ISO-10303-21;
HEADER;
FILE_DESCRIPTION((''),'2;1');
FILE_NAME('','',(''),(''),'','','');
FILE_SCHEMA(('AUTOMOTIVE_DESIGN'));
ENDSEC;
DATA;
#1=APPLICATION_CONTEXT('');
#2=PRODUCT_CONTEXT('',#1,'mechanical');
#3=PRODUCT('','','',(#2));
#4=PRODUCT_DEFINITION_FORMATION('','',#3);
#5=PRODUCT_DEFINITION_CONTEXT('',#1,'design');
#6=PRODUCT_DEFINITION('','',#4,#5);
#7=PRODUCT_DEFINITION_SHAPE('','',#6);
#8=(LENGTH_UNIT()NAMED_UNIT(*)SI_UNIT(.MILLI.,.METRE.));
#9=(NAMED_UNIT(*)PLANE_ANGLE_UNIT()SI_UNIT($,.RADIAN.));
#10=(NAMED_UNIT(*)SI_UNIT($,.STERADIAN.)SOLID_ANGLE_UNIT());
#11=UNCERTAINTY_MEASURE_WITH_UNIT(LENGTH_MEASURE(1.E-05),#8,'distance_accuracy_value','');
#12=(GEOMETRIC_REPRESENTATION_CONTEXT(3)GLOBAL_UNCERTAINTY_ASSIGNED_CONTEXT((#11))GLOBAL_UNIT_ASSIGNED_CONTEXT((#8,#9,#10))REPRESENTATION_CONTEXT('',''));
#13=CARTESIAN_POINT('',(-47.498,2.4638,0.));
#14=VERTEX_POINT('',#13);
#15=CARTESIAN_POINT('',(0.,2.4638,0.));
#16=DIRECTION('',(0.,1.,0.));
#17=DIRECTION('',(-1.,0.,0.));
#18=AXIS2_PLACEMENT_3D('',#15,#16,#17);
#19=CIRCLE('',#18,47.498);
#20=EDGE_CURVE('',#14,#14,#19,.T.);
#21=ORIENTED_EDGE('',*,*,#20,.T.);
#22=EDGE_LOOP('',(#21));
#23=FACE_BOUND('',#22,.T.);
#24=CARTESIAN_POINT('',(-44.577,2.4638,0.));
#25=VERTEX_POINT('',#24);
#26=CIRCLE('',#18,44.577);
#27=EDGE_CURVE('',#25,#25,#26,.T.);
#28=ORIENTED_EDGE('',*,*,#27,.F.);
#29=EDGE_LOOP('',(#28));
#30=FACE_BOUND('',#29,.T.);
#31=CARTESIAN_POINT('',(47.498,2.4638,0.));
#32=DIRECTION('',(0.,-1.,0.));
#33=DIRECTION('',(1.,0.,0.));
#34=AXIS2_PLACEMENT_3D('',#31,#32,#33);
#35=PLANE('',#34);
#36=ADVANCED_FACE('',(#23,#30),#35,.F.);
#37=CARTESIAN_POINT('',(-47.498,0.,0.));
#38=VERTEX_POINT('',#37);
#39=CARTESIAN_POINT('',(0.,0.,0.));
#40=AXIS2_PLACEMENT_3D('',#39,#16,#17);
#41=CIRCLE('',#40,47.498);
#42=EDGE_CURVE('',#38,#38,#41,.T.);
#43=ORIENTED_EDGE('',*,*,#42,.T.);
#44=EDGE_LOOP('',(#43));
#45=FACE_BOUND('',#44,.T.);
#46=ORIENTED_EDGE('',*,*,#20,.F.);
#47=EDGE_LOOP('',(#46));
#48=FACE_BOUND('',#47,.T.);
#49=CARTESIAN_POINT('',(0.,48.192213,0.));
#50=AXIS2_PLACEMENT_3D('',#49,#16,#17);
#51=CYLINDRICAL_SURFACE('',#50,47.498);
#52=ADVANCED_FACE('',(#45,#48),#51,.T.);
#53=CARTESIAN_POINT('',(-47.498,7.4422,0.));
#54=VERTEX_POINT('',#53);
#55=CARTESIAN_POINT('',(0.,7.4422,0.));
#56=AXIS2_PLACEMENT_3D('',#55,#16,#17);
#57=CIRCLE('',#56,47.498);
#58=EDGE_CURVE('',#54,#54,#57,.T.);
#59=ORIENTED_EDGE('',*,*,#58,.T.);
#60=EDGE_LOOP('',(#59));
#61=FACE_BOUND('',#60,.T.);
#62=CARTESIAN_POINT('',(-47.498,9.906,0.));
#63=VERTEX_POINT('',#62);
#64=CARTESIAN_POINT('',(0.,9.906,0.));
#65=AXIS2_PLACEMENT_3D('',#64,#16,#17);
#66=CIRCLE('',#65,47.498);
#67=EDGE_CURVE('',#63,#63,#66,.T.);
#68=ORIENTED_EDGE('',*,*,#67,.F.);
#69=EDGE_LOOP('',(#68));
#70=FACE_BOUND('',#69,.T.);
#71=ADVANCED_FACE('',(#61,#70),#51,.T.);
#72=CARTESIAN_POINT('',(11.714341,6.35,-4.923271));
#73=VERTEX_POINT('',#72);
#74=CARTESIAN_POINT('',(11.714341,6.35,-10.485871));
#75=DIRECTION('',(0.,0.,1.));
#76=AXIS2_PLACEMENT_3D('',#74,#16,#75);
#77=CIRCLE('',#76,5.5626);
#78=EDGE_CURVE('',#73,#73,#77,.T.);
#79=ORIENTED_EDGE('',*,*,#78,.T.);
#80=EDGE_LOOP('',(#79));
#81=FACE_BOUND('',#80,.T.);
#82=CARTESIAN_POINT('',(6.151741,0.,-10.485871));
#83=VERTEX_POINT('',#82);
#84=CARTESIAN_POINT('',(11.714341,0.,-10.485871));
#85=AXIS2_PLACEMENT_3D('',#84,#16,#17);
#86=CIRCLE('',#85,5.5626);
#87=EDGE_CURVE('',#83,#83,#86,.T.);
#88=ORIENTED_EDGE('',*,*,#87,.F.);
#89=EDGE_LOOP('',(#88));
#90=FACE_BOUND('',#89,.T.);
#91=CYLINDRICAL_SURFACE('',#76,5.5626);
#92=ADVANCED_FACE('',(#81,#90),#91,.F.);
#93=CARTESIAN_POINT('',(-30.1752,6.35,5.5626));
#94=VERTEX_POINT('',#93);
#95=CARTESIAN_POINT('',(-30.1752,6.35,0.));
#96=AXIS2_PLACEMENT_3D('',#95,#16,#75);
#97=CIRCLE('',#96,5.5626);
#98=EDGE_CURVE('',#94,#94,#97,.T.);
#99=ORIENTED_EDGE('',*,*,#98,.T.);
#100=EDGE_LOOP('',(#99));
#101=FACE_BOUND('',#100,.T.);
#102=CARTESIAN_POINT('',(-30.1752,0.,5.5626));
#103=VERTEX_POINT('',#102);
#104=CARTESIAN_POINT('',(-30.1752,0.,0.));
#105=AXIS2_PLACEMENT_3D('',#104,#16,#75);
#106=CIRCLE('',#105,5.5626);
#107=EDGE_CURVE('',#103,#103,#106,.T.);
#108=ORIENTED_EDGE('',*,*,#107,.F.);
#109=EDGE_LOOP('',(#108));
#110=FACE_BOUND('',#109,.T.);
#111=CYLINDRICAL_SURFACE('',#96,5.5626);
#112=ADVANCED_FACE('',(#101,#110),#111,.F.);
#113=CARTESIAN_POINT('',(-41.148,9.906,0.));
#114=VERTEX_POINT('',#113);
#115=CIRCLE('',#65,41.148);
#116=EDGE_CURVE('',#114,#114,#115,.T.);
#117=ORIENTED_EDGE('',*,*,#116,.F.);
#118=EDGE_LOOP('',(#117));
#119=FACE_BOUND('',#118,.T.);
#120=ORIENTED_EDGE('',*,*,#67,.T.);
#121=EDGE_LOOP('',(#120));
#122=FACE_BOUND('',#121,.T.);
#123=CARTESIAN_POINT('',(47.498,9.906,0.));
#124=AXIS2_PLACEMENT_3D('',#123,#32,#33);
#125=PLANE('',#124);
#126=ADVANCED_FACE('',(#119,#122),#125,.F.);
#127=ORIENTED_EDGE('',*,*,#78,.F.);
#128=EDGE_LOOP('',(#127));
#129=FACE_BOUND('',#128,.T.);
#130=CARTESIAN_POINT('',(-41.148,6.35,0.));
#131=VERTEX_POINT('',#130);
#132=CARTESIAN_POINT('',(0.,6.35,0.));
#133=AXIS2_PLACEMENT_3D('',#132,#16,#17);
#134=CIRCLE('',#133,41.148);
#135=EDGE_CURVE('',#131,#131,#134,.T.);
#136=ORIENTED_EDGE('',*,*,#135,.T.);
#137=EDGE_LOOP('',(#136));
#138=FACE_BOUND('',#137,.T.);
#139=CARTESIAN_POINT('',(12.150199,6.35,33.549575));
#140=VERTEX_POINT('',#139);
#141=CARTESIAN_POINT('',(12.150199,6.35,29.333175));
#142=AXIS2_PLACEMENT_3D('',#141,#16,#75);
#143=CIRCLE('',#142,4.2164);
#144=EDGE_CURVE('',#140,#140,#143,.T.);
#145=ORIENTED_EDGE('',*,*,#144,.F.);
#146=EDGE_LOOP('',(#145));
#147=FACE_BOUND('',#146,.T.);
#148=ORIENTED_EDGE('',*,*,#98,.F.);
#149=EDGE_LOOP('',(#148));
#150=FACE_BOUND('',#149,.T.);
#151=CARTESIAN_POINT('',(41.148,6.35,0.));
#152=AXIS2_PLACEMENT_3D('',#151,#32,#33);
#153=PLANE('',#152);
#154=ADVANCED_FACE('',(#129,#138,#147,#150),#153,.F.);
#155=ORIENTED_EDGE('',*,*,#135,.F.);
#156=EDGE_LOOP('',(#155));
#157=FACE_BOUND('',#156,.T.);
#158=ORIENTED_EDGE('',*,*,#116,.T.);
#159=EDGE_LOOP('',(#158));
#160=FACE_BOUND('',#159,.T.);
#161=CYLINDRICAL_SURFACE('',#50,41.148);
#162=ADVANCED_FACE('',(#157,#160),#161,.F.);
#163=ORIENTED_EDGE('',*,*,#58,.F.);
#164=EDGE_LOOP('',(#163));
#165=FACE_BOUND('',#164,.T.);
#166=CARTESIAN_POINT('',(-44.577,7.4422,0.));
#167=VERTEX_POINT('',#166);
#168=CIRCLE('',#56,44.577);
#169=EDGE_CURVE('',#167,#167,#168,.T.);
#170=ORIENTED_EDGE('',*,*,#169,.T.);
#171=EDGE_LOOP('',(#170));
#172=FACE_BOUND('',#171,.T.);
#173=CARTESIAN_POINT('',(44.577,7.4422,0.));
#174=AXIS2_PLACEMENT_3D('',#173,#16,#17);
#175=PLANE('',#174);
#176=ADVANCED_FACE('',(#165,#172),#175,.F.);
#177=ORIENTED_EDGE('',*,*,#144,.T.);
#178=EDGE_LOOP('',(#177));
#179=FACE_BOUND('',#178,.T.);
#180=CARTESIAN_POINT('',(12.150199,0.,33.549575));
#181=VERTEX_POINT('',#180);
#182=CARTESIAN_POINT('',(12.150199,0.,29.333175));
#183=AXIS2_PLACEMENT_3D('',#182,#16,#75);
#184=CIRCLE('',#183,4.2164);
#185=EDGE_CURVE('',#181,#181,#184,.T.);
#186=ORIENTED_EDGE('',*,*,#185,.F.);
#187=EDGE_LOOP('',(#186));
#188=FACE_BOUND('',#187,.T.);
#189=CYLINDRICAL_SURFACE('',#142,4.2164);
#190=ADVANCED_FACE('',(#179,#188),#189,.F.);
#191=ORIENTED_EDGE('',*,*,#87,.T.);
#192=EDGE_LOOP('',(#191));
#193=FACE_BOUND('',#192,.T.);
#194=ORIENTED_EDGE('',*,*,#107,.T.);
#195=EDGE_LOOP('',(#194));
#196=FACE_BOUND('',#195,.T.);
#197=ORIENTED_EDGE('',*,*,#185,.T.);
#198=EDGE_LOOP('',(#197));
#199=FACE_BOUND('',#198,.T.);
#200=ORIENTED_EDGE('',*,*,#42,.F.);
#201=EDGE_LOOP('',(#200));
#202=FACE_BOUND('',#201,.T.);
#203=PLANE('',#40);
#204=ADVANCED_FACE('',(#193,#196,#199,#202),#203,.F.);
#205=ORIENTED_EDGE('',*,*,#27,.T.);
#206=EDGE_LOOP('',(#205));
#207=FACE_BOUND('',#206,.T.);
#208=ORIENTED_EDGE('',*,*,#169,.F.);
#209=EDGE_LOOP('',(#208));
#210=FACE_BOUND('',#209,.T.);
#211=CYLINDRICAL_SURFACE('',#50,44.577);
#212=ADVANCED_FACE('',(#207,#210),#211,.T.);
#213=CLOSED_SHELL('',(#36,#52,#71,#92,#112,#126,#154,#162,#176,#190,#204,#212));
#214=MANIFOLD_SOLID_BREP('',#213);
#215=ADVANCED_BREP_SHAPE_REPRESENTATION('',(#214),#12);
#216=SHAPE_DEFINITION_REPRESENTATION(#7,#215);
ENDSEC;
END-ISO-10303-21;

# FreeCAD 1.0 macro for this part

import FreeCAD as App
import Part
import Sketcher

V = App.Vector
Q = App.Units.Quantity

doc = App.newDocument("Part")
body = doc.addObject("PartDesign::Body", "Body")

# Sketch on XY plane
sketch1 = doc.addObject("Sketcher::SketchObject", "Sketch")
body.addObject(sketch1)
sketch1.AttachmentSupport = (doc.XY_Plane, [""])
sketch1.MapMode = "FlatFace"
sketch1.addGeometry(Part.LineSegment(V(0, 0, 0), V(47.5, 0, 0)), False)
sketch1.addGeometry(Part.LineSegment(V(47.5, 0, 0), V(47.5, 2.5, 0)), False)
sketch1.addGeometry(Part.LineSegment(V(47.5, 2.5, 0), V(44.6, 2.5, 0)), False)
sketch1.addGeometry(Part.LineSegment(V(44.6, 2.5, 0), V(44.6, 7.4, 0)), False)
sketch1.addGeometry(Part.LineSegment(V(44.6, 7.4, 0), V(47.5, 7.4, 0)), False)
sketch1.addGeometry(Part.LineSegment(V(47.5, 7.4, 0), V(47.5, 9.9, 0)), False)
sketch1.addGeometry(Part.LineSegment(V(47.5, 9.9, 0), V(41.1, 9.9, 0)), False)
sketch1.addGeometry(Part.LineSegment(V(41.1, 9.9, 0), V(41.1, 6.3, 0)), False)
sketch1.addGeometry(Part.LineSegment(V(41.1, 6.3, 0), V(0, 6.3, 0)), False)
sketch1.addGeometry(Part.LineSegment(V(0, 6.3, 0), V(0, 0, 0)), False)
sketch1.addConstraint(Sketcher.Constraint("Coincident", 0, 2, 1, 1))
sketch1.addConstraint(Sketcher.Constraint("Coincident", 1, 2, 2, 1))
sketch1.addConstraint(Sketcher.Constraint("Coincident", 2, 2, 3, 1))
sketch1.addConstraint(Sketcher.Constraint("Coincident", 3, 2, 4, 1))
sketch1.addConstraint(Sketcher.Constraint("Coincident", 4, 2, 5, 1))
sketch1.addConstraint(Sketcher.Constraint("Coincident", 5, 2, 6, 1))
sketch1.addConstraint(Sketcher.Constraint("Coincident", 6, 2, 7, 1))
sketch1.addConstraint(Sketcher.Constraint("Coincident", 7, 2, 8, 1))
sketch1.addConstraint(Sketcher.Constraint("Coincident", 8, 2, 9, 1))
sketch1.addConstraint(Sketcher.Constraint("Coincident", 9, 2, 0, 1))
sketch1.addConstraint(Sketcher.Constraint("Horizontal", 0))
sketch1.addConstraint(Sketcher.Constraint("Vertical", 1))
sketch1.addConstraint(Sketcher.Constraint("Horizontal", 2))
sketch1.addConstraint(Sketcher.Constraint("Vertical", 3))
sketch1.addConstraint(Sketcher.Constraint("Horizontal", 4))
sketch1.addConstraint(Sketcher.Constraint("Vertical", 5))
sketch1.addConstraint(Sketcher.Constraint("Horizontal", 6))
sketch1.addConstraint(Sketcher.Constraint("Vertical", 7))
sketch1.addConstraint(Sketcher.Constraint("Horizontal", 8))
sketch1.addConstraint(Sketcher.Constraint("Vertical", 9))
sketch1.addConstraint(Sketcher.Constraint("Coincident", 9, 2, -1, 1))
sketch1.addConstraint(Sketcher.Constraint("Vertical", 1, 2, 4, 2))
sketch1.addConstraint(Sketcher.Constraint("Equal", 1, 5))
sketch1.addConstraint(Sketcher.Constraint("Equal", 6, 9))
sketch1.addConstraint(Sketcher.Constraint("DistanceX", 0, 1, 0, 2, Q("1.87 in")))
sketch1.addConstraint(Sketcher.Constraint("DistanceX", 6, 2, 6, 1, Q("0.25 in")))
sketch1.addConstraint(Sketcher.Constraint("DistanceY", 7, 2, 7, 1, Q("0.14 in")))
sketch1.addConstraint(Sketcher.Constraint("DistanceX", 2, 2, 2, 1, Q("0.115 in")))
sketch1.addConstraint(Sketcher.Constraint("DistanceY", 1, 1, 1, 2, Q("0.097 in")))
revolution = doc.addObject("PartDesign::Revolution", "Revolution")
body.addObject(revolution)
revolution.Profile = sketch1
revolution.ReferenceAxis = (sketch1, ["V_Axis"])
revolution.Angle = 360

# Sketch on XZ plane
sketch2 = doc.addObject("Sketcher::SketchObject", "Sketch001")
body.addObject(sketch2)
sketch2.AttachmentSupport = (doc.XZ_Plane, [""])
sketch2.MapMode = "FlatFace"
sketch2.AttachmentOffset = App.Placement(V(0, 0, -0.25 * 25.4), App.Rotation())
sketch2.addGeometry(Part.Circle(V(0, 0, 0), V(0, 0, 1), 6), False)
sketch2.addGeometry(Part.Circle(V(-30, 0, 0), V(0, 0, 1), 6), False)
sketch2.addConstraint(Sketcher.Constraint("Coincident", 0, 3, -1, 1))
sketch2.addConstraint(Sketcher.Constraint("Equal", 0, 1))
sketch2.addConstraint(Sketcher.Constraint("PointOnObject", 1, 3, -1))
sketch2.addConstraint(Sketcher.Constraint("Diameter", 0, Q("0.438 in")))
sketch2.addConstraint(Sketcher.Constraint("DistanceX", 1, 3, -1, 1, Q("1.188 in")))
doc.recompute()
hole = doc.addObject("PartDesign::Hole", "Hole")
body.addObject(hole)
hole.Profile = sketch2
hole.ThreadType = "None"
hole.Diameter = Q("0.438 in")
hole.DepthType = "ThroughAll"
hole.Reversed = True

# Sketch on XZ plane
sketch3 = doc.addObject("Sketcher::SketchObject", "Sketch002")
body.addObject(sketch3)
sketch3.AttachmentSupport = (doc.XZ_Plane, [""])
sketch3.MapMode = "FlatFace"
sketch3.AttachmentOffset = App.Placement(V(0, 0, -0.25 * 25.4), App.Rotation())
sketch3.addGeometry(Part.Circle(V(12.2, 29.3, 0), V(0, 0, 1), 4.2), False)
sketch3.addConstraint(Sketcher.Constraint("Diameter", 0, Q("0.332 in")))
sketch3.addConstraint(Sketcher.Constraint("DistanceX", -1, 1, 0, 3, 12.150199))
sketch3.addConstraint(Sketcher.Constraint("DistanceY", -1, 1, 0, 3, 29.333175))
doc.recompute()
hole2 = doc.addObject("PartDesign::Hole", "Hole001")
body.addObject(hole2)
hole2.Profile = sketch3
hole2.ThreadType = "None"
hole2.Diameter = Q("0.332 in")
hole2.DepthType = "ThroughAll"
hole2.Reversed = True

# Sketch on XZ plane
sketch4 = doc.addObject("Sketcher::SketchObject", "Sketch003")
body.addObject(sketch4)
sketch4.AttachmentSupport = (doc.XZ_Plane, [""])
sketch4.MapMode = "FlatFace"
sketch4.AttachmentOffset = App.Placement(V(0, 0, -0.25 * 25.4), App.Rotation())
sketch4.addGeometry(Part.Circle(V(0, 0, 0), V(0, 0, 1), 6), False)
sketch4.addConstraint(Sketcher.Constraint("Coincident", 0, 3, -1, 1))
sketch4.addConstraint(Sketcher.Constraint("Diameter", 0, Q("0.5 in")))
pad1 = doc.addObject("PartDesign::Pad", "Pad")
body.addObject(pad1)
pad1.Profile = sketch4
pad1.Length = Q("0.25 in")

# Sketch on XZ plane
sketch5 = doc.addObject("Sketcher::SketchObject", "Sketch004")
body.addObject(sketch5)
sketch5.AttachmentSupport = (doc.XZ_Plane, [""])
sketch5.MapMode = "FlatFace"
sketch5.AttachmentOffset = App.Placement(V(0, 0, -0.25 * 25.4), App.Rotation())
sketch5.addGeometry(Part.Circle(V(12, -10, 0), V(0, 0, 1), 6), False)
sketch5.addConstraint(Sketcher.Constraint("Diameter", 0, Q("0.438 in")))
sketch5.addConstraint(Sketcher.Constraint("DistanceX", -1, 1, 0, 3, 11.714341))
sketch5.addConstraint(Sketcher.Constraint("DistanceY", 0, 3, -1, 1, 10.485871))
doc.recompute()
hole3 = doc.addObject("PartDesign::Hole", "Hole002")
body.addObject(hole3)
hole3.Profile = sketch5
hole3.ThreadType = "None"
hole3.Diameter = Q("0.438 in")
hole3.DepthType = "ThroughAll"
hole3.Reversed = True

doc.recompute()
